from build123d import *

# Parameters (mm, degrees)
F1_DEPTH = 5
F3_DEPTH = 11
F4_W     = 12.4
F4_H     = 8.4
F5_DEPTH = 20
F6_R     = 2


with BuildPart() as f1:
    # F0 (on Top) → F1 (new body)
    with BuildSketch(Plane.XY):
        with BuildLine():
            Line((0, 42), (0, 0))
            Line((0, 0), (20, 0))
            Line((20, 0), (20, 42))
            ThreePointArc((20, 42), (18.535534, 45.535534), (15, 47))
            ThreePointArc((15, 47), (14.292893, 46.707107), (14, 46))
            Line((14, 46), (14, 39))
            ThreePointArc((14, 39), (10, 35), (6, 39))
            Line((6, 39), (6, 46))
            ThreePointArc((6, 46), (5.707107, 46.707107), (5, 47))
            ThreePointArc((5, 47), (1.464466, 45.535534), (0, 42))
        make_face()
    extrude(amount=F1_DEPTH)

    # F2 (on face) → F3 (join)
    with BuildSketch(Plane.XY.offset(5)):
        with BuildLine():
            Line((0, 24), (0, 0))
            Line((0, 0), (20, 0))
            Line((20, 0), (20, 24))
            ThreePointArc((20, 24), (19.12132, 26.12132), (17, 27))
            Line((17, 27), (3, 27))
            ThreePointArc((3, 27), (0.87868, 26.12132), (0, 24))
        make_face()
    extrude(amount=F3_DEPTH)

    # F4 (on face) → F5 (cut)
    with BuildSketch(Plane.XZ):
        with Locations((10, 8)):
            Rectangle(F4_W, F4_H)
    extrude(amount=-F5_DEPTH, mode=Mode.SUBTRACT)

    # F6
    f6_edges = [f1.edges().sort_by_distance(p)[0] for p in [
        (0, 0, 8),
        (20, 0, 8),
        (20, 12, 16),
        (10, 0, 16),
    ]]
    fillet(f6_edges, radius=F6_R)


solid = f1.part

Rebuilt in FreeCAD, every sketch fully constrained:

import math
import FreeCAD as App
import Part
import Sketcher

V = App.Vector
Q = App.Units.Quantity


def edges_at(feature, points):
    """Names of the edges that pass closest to the given points."""
    edges = feature.Shape.Edges
    near = lambda p: min(range(len(edges)), key=lambda i: edges[i].distToShape(Part.Vertex(*p))[0])
    return sorted({f"Edge{near(p) + 1}" for p in points})


def add_polygon(sketch, points):
    """Adds a closed chain of lines whose ends are joined by coincident constraints."""
    first, n = sketch.GeometryCount, len(points)
    for a, b in zip(points, points[1:] + points[:1]):
        sketch.addGeometry(Part.LineSegment(App.Vector(*a, 0), App.Vector(*b, 0)), False)
    for i in range(n):
        sketch.addConstraint(Sketcher.Constraint("Coincident", first + i, 2, first + (i + 1) % n, 1))

doc = App.newDocument("Part")
body = doc.addObject("PartDesign::Body", "Body")

# Sketch on XY plane
sketch1 = body.newObject("Sketcher::SketchObject", "Sketch")
sketch1.AttachmentSupport = (doc.getObject("XY_Plane"), [""])
sketch1.MapMode = "FlatFace"
sketch1.addGeometry([
    Part.LineSegment(V(0, 42, 0), V(0, 0, 0)),  # 0
    Part.LineSegment(V(0, 0, 0), V(20, 0, 0)),  # 1
    Part.LineSegment(V(20, 0, 0), V(20, 42, 0)),  # 2
    Part.ArcOfCircle(Part.Circle(V(15, 42, 0), V(0, 0, 1), 5), math.radians(-0.000004), math.radians(90.000004)),  # 3
    Part.ArcOfCircle(Part.Circle(V(14.999999, 46.000001, 0), V(0, 0, 1), 0.999999), math.radians(89.999957), math.radians(180.000043)),  # 4
    Part.LineSegment(V(14, 46, 0), V(14, 39, 0)),  # 5
    Part.ArcOfCircle(Part.Circle(V(10, 39, 0), V(0, 0, 1), 4), math.radians(180), math.radians(360)),  # 6
    Part.LineSegment(V(6, 39, 0), V(6, 46, 0)),  # 7
    Part.ArcOfCircle(Part.Circle(V(5.000001, 46.000001, 0), V(0, 0, 1), 0.999999), math.radians(-0.000043), math.radians(90.000043)),  # 8
    Part.ArcOfCircle(Part.Circle(V(5, 42, 0), V(0, 0, 1), 5), math.radians(89.999996), math.radians(180.000004)),  # 9
], False)
sketch1.addConstraint([
    Sketcher.Constraint("Coincident", 0, 2, 1, 1),
    Sketcher.Constraint("Coincident", 1, 2, 2, 1),
    Sketcher.Constraint("Tangent", 2, 2, 3, 1),
    Sketcher.Constraint("Tangent", 3, 2, 4, 1),
    Sketcher.Constraint("Tangent", 4, 2, 5, 1),
    Sketcher.Constraint("Tangent", 5, 2, 6, 2),
    Sketcher.Constraint("Tangent", 6, 1, 7, 1),
    Sketcher.Constraint("Tangent", 7, 2, 8, 1),
    Sketcher.Constraint("Tangent", 8, 2, 9, 1),
    Sketcher.Constraint("Tangent", 9, 2, 0, 1),
    Sketcher.Constraint("Vertical", 0),
    Sketcher.Constraint("Horizontal", 1),
    Sketcher.Constraint("Vertical", 2),
    Sketcher.Constraint("Vertical", 5),
    Sketcher.Constraint("Vertical", 7),
    Sketcher.Constraint("Coincident", 0, 2, -1, 1),
    Sketcher.Constraint("Equal", 4, 8),
    Sketcher.Constraint("Equal", 3, 9),
    Sketcher.Constraint("Horizontal", 4, 3, 8, 3),
    Sketcher.Constraint("Vertical", 3, 3, 4, 3),
    Sketcher.Constraint("Vertical", 8, 3, 9, 3),
    Sketcher.Constraint("Radius", 3, Q("5 mm")),
    Sketcher.Constraint("Radius", 4, Q("0.999999 mm")),
    Sketcher.Constraint("Radius", 6, Q("4 mm")),
    Sketcher.Constraint("DistanceY", 0, 2, 0, 1, Q("42 mm")),
    Sketcher.Constraint("DistanceY", 5, 2, 5, 1, Q("7 mm")),
])
pad1 = body.newObject("PartDesign::Pad", "Pad")
pad1.Profile = sketch1
pad1.Length = 5

# Sketch on XY plane
sketch2 = body.newObject("Sketcher::SketchObject", "Sketch001")
sketch2.AttachmentSupport = (doc.getObject("XY_Plane"), [""])
sketch2.MapMode = "FlatFace"
sketch2.AttachmentOffset = App.Placement(V(0, 0, 5), App.Rotation())
sketch2.addGeometry([
    Part.LineSegment(V(0, 24, 0), V(0, 0, 0)),  # 0
    Part.LineSegment(V(0, 0, 0), V(20, 0, 0)),  # 1
    Part.LineSegment(V(20, 0, 0), V(20, 24, 0)),  # 2
    Part.ArcOfCircle(Part.Circle(V(16.999999, 23.999999, 0), V(0, 0, 1), 3.000001), math.radians(0.000022), math.radians(89.999978)),  # 3
    Part.LineSegment(V(17, 27, 0), V(3, 27, 0)),  # 4
    Part.ArcOfCircle(Part.Circle(V(3.000001, 23.999999, 0), V(0, 0, 1), 3.000001), math.radians(90.000022), math.radians(179.999978)),  # 5
], False)
sketch2.addConstraint([
    Sketcher.Constraint("Coincident", 0, 2, 1, 1),
    Sketcher.Constraint("Coincident", 1, 2, 2, 1),
    Sketcher.Constraint("Tangent", 2, 2, 3, 1),
    Sketcher.Constraint("Tangent", 3, 2, 4, 1),
    Sketcher.Constraint("Tangent", 4, 2, 5, 1),
    Sketcher.Constraint("Tangent", 5, 2, 0, 1),
    Sketcher.Constraint("Vertical", 0),
    Sketcher.Constraint("Horizontal", 1),
    Sketcher.Constraint("Vertical", 2),
    Sketcher.Constraint("Horizontal", 4),
    Sketcher.Constraint("Coincident", 0, 2, -1, 1),
    Sketcher.Constraint("Equal", 3, 5),
    Sketcher.Constraint("Radius", 3, Q("3.000001 mm")),
    Sketcher.Constraint("DistanceX", 1, 1, 1, 2, Q("20 mm")),
    Sketcher.Constraint("DistanceY", 0, 2, 0, 1, Q("24 mm")),
])
pad2 = body.newObject("PartDesign::Pad", "Pad001")
pad2.Profile = sketch2
pad2.Length = 11

# Sketch on XZ plane
sketch3 = body.newObject("Sketcher::SketchObject", "Sketch002")
sketch3.AttachmentSupport = (doc.getObject("XZ_Plane"), [""])
sketch3.MapMode = "FlatFace"
add_polygon(sketch3, [(3.8, 12.2), (3.8, 3.8), (16.2, 3.8), (16.2, 12.2)])  # lines 0-3
sketch3.addConstraint([
    Sketcher.Constraint("Vertical", 0),
    Sketcher.Constraint("Horizontal", 1),
    Sketcher.Constraint("Vertical", 2),
    Sketcher.Constraint("Horizontal", 3),
    Sketcher.Constraint("DistanceX", 1, 1, 1, 2, Q("12.4 mm")),
    Sketcher.Constraint("DistanceY", 0, 2, 0, 1, Q("8.4 mm")),
    Sketcher.Constraint("DistanceX", -1, 1, 0, 2, Q("3.8 mm")),
    Sketcher.Constraint("DistanceY", -1, 1, 0, 2, Q("3.8 mm")),
])
pocket1 = body.newObject("PartDesign::Pocket", "Pocket")
pocket1.Profile = sketch3
pocket1.Length = 20
doc.recompute()

fillet = body.newObject("PartDesign::Fillet", "Fillet")
fillet.Base = (pocket1, edges_at(pocket1, [
    (0, 0, 8),
    (20, 0, 8),
    (20, 12, 16),
    (10, 0, 16),
]))
fillet.Radius = 2

doc.recompute()
